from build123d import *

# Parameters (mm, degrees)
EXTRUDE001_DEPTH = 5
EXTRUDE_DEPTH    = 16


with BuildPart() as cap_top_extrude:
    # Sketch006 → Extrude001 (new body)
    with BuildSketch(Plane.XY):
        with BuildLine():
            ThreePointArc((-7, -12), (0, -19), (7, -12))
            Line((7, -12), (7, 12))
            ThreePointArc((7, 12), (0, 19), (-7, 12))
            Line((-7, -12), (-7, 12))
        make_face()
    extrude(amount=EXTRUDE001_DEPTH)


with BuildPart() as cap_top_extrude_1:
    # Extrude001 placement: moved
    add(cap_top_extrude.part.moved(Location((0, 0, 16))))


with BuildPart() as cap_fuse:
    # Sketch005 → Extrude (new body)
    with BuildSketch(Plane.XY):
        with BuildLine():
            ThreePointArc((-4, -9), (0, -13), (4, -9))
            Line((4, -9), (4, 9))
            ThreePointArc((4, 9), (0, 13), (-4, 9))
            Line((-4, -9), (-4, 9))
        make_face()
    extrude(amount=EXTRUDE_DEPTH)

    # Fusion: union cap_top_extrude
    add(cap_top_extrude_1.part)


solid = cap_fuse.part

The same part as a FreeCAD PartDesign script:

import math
import FreeCAD as App
import Part
import Sketcher
Q = App.Units.Quantity

doc = App.newDocument("Part")
body = doc.addObject("PartDesign::Body", "Body")

sketch1 = doc.addObject("Sketcher::SketchObject", "Sketch")
body.addObject(sketch1)
sketch1.AttachmentSupport = (doc.XY_Plane, [""])
sketch1.MapMode = "FlatFace"
sketch1.addGeometry(Part.ArcOfCircle(Part.Circle(App.Vector(0, -12, 0), App.Vector(0, 0, 1), 7), math.radians(180), math.radians(360)), False)
sketch1.addGeometry(Part.LineSegment(App.Vector(7, -12, 0), App.Vector(7, 12, 0)), False)
sketch1.addGeometry(Part.ArcOfCircle(Part.Circle(App.Vector(0, 12, 0), App.Vector(0, 0, 1), 7), math.radians(0), math.radians(180)), False)
sketch1.addGeometry(Part.LineSegment(App.Vector(-7, 12, 0), App.Vector(-7, -12, 0)), False)
sketch1.addConstraint(Sketcher.Constraint("Tangent", 0, 2, 1, 1))
sketch1.addConstraint(Sketcher.Constraint("Tangent", 1, 2, 2, 1))
sketch1.addConstraint(Sketcher.Constraint("Tangent", 2, 2, 3, 1))
sketch1.addConstraint(Sketcher.Constraint("Tangent", 3, 2, 0, 1))
sketch1.addConstraint(Sketcher.Constraint("Vertical", 1))
sketch1.addConstraint(Sketcher.Constraint("Vertical", 3))
sketch1.addConstraint(Sketcher.Constraint("Symmetric", 0, 3, 2, 3, -1, 1))
sketch1.addConstraint(Sketcher.Constraint("Radius", 0, Q("7 mm")))
sketch1.addConstraint(Sketcher.Constraint("DistanceY", 1, 1, 1, 2, Q("24 mm")))
pad1 = doc.addObject("PartDesign::Pad", "Pad")
body.addObject(pad1)
pad1.Profile = sketch1
pad1.Length = 5
body2 = doc.addObject("PartDesign::Body", "Body001")
doc.recompute()

body.Placement = App.Placement(App.Vector(0, 0, 16), App.Rotation(App.Vector(0, 0, 1), 0))
boolean = doc.addObject("PartDesign::Boolean", "Boolean")
body2.addObject(boolean)
boolean.Type = "Fuse"
boolean.addObjects([body])
body3 = doc.addObject("PartDesign::Body", "Body002")

sketch2 = doc.addObject("Sketcher::SketchObject", "Sketch001")
body3.addObject(sketch2)
sketch2.AttachmentSupport = (doc.getObject("XY_Plane002"), [""])
sketch2.MapMode = "FlatFace"
sketch2.addGeometry(Part.ArcOfCircle(Part.Circle(App.Vector(0, -9, 0), App.Vector(0, 0, 1), 4), math.radians(180), math.radians(360)), False)
sketch2.addGeometry(Part.LineSegment(App.Vector(4, -9, 0), App.Vector(4, 9, 0)), False)
sketch2.addGeometry(Part.ArcOfCircle(Part.Circle(App.Vector(0, 9, 0), App.Vector(0, 0, 1), 4), math.radians(0), math.radians(180)), False)
sketch2.addGeometry(Part.LineSegment(App.Vector(-4, 9, 0), App.Vector(-4, -9, 0)), False)
sketch2.addConstraint(Sketcher.Constraint("Tangent", 0, 2, 1, 1))
sketch2.addConstraint(Sketcher.Constraint("Tangent", 1, 2, 2, 1))
sketch2.addConstraint(Sketcher.Constraint("Tangent", 2, 2, 3, 1))
sketch2.addConstraint(Sketcher.Constraint("Tangent", 3, 2, 0, 1))
sketch2.addConstraint(Sketcher.Constraint("Vertical", 1))
sketch2.addConstraint(Sketcher.Constraint("Vertical", 3))
sketch2.addConstraint(Sketcher.Constraint("Symmetric", 0, 3, 2, 3, -1, 1))
sketch2.addConstraint(Sketcher.Constraint("Radius", 0, Q("4 mm")))
sketch2.addConstraint(Sketcher.Constraint("DistanceY", 1, 1, 1, 2, Q("18 mm")))
pad2 = doc.addObject("PartDesign::Pad", "Pad001")
body3.addObject(pad2)
pad2.Profile = sketch2
pad2.Length = 16
doc.recompute()

boolean2 = doc.addObject("PartDesign::Boolean", "Boolean001")
body3.addObject(boolean2)
boolean2.Type = "Fuse"
boolean2.addObjects([body2])

doc.recompute()
